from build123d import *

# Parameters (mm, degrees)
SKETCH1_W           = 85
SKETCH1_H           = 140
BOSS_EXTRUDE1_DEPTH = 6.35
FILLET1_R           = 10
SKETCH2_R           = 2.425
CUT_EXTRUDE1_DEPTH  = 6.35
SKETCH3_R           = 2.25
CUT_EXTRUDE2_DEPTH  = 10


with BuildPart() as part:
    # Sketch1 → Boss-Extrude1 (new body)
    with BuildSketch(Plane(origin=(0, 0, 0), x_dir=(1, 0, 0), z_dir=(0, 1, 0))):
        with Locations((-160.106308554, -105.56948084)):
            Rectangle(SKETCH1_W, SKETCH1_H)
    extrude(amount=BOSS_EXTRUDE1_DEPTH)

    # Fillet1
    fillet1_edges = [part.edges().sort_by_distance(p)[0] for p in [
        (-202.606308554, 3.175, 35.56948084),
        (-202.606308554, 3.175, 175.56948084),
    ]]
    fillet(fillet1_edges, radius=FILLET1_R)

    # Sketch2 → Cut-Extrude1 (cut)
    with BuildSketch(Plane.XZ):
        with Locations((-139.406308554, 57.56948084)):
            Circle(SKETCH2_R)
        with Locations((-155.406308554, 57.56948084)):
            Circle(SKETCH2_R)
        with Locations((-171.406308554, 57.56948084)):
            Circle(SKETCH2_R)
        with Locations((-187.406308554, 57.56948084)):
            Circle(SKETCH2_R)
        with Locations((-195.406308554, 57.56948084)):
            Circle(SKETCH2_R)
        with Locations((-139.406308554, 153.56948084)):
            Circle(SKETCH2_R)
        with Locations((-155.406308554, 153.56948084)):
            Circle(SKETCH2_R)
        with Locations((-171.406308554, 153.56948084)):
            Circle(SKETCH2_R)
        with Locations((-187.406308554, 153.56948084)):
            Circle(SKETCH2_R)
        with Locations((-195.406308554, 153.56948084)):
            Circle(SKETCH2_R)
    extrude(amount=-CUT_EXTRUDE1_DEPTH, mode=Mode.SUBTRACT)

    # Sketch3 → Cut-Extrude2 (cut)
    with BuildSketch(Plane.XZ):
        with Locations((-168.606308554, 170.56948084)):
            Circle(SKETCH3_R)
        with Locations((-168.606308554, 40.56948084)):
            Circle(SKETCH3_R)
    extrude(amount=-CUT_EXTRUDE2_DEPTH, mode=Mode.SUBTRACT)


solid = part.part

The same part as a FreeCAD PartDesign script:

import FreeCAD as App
import Part
import Sketcher
Q = App.Units.Quantity


def edges_at(feature, points):
    """Names of the edges that pass closest to the given points."""
    edges = feature.Shape.Edges
    near = lambda p: min(range(len(edges)), key=lambda i: edges[i].distToShape(Part.Vertex(*p))[0])
    return sorted({f"Edge{near(p) + 1}" for p in points})


def add_polygon(sketch, points):
    """Adds a closed chain of lines whose ends are joined by coincident constraints."""
    first, n = sketch.GeometryCount, len(points)
    for a, b in zip(points, points[1:] + points[:1]):
        sketch.addGeometry(Part.LineSegment(App.Vector(*a, 0), App.Vector(*b, 0)), False)
    for i in range(n):
        sketch.addConstraint(Sketcher.Constraint("Coincident", first + i, 2, first + (i + 1) % n, 1))

doc = App.newDocument("Part")
body = doc.addObject("PartDesign::Body", "Body")

sketch1 = body.newObject("Sketcher::SketchObject", "Sketch")
sketch1.AttachmentSupport = (doc.getObject("XZ_Plane"), [""])
sketch1.MapMode = "FlatFace"
add_polygon(sketch1, [(-203, 36), (-203, 176), (-118, 176), (-118, 36)])
sketch1.addConstraint([
    Sketcher.Constraint("Vertical", 0),
    Sketcher.Constraint("Horizontal", 1),
    Sketcher.Constraint("Vertical", 2),
    Sketcher.Constraint("Horizontal", 3),
    Sketcher.Constraint("DistanceX", 1, 1, 1, 2, Q("85 mm")),
    Sketcher.Constraint("DistanceY", 0, 1, 0, 2, Q("140 mm")),
    Sketcher.Constraint("DistanceX", 0, 2, -1, 1, Q("202.606309 mm")),
    Sketcher.Constraint("DistanceY", -1, 1, 0, 2, Q("175.569481 mm")),
])
pad1 = body.newObject("PartDesign::Pad", "Pad")
pad1.Profile = sketch1
pad1.Length = 6.35
pad1.Reversed = True
doc.recompute()

fillet = body.newObject("PartDesign::Fillet", "Fillet")
fillet.Base = (pad1, edges_at(pad1, [(-202.606, 3.175, 35.569), (-202.606, 3.175, 175.569)]))
fillet.Radius = 10

sketch2 = body.newObject("Sketcher::SketchObject", "Sketch001")
sketch2.AttachmentSupport = (doc.getObject("XZ_Plane"), [""])
sketch2.MapMode = "FlatFace"
sketch2.addGeometry([
    Part.Circle(App.Vector(-139.4, 57.6, 0), App.Vector(0, 0, 1), 2.4),
    Part.Circle(App.Vector(-155.4, 57.6, 0), App.Vector(0, 0, 1), 2.4),
    Part.Circle(App.Vector(-171.4, 57.6, 0), App.Vector(0, 0, 1), 2.4),
    Part.Circle(App.Vector(-187.4, 57.6, 0), App.Vector(0, 0, 1), 2.4),
    Part.Circle(App.Vector(-195.4, 57.6, 0), App.Vector(0, 0, 1), 2.4),
    Part.Circle(App.Vector(-139.4, 153.6, 0), App.Vector(0, 0, 1), 2.4),
    Part.Circle(App.Vector(-155.4, 153.6, 0), App.Vector(0, 0, 1), 2.4),
    Part.Circle(App.Vector(-171.4, 153.6, 0), App.Vector(0, 0, 1), 2.4),
    Part.Circle(App.Vector(-187.4, 153.6, 0), App.Vector(0, 0, 1), 2.4),
    Part.Circle(App.Vector(-195.4, 153.6, 0), App.Vector(0, 0, 1), 2.4),
], False)
sketch2.addConstraint([
    Sketcher.Constraint("Equal", 0, 1),
    Sketcher.Constraint("Equal", 1, 2),
    Sketcher.Constraint("Equal", 2, 3),
    Sketcher.Constraint("Equal", 3, 4),
    Sketcher.Constraint("Equal", 4, 5),
    Sketcher.Constraint("Equal", 5, 6),
    Sketcher.Constraint("Equal", 6, 7),
    Sketcher.Constraint("Equal", 7, 8),
    Sketcher.Constraint("Equal", 8, 9),
    Sketcher.Constraint("Horizontal", 0, 3, 1, 3),
    Sketcher.Constraint("Horizontal", 1, 3, 2, 3),
    Sketcher.Constraint("Horizontal", 2, 3, 3, 3),
    Sketcher.Constraint("Horizontal", 3, 3, 4, 3),
    Sketcher.Constraint("Horizontal", 5, 3, 6, 3),
    Sketcher.Constraint("Horizontal", 6, 3, 7, 3),
    Sketcher.Constraint("Horizontal", 7, 3, 8, 3),
    Sketcher.Constraint("Horizontal", 8, 3, 9, 3),
    Sketcher.Constraint("Vertical", 0, 3, 5, 3),
    Sketcher.Constraint("Vertical", 1, 3, 6, 3),
    Sketcher.Constraint("Vertical", 2, 3, 7, 3),
    Sketcher.Constraint("Vertical", 3, 3, 8, 3),
    Sketcher.Constraint("Vertical", 4, 3, 9, 3),
    Sketcher.Constraint("Diameter", 0, Q("4.85 mm")),
    Sketcher.Constraint("DistanceX", 1, 3, 0, 3, Q("16 mm")),
    Sketcher.Constraint("DistanceX", 2, 3, 1, 3, Q("16 mm")),
    Sketcher.Constraint("DistanceX", 3, 3, 2, 3, Q("16 mm")),
    Sketcher.Constraint("DistanceX", 4, 3, 3, 3, Q("8 mm")),
    Sketcher.Constraint("DistanceY", 0, 3, 5, 3, Q("96 mm")),
    Sketcher.Constraint("DistanceX", 0, 3, -1, 1, Q("139.406309 mm")),
    Sketcher.Constraint("DistanceY", -1, 1, 0, 3, Q("57.569481 mm")),
])
pocket1 = body.newObject("PartDesign::Pocket", "Pocket")
pocket1.Profile = sketch2
pocket1.Length = 6.35

sketch3 = body.newObject("Sketcher::SketchObject", "Sketch002")
sketch3.AttachmentSupport = (doc.getObject("XZ_Plane"), [""])
sketch3.MapMode = "FlatFace"
sketch3.addGeometry([
    Part.Circle(App.Vector(-168.6, 170.6, 0), App.Vector(0, 0, 1), 2.2),
    Part.Circle(App.Vector(-168.6, 40.6, 0), App.Vector(0, 0, 1), 2.2),
], False)
sketch3.addConstraint([
    Sketcher.Constraint("Equal", 0, 1),
    Sketcher.Constraint("Vertical", 0, 3, 1, 3),
    Sketcher.Constraint("Diameter", 0, Q("4.5 mm")),
    Sketcher.Constraint("DistanceY", 1, 3, 0, 3, Q("130 mm")),
    Sketcher.Constraint("DistanceX", 0, 3, -1, 1, Q("168.606309 mm")),
    Sketcher.Constraint("DistanceY", -1, 1, 0, 3, Q("170.569481 mm")),
])
pocket2 = body.newObject("PartDesign::Pocket", "Pocket001")
pocket2.Profile = sketch3
pocket2.Length = 10

doc.recompute()
